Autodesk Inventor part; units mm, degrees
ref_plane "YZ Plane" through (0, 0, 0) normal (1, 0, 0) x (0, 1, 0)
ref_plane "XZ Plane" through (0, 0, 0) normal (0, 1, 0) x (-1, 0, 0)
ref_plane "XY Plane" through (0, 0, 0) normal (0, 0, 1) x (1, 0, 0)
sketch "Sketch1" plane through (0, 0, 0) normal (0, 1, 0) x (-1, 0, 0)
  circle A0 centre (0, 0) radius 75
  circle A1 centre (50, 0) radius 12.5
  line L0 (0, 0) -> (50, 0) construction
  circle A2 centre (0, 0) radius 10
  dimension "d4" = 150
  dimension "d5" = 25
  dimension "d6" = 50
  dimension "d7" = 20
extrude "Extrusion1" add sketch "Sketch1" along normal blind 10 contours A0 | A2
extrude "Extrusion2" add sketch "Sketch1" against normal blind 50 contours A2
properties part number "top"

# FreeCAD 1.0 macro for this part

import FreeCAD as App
import Part
import Sketcher

doc = App.newDocument("Part")
body = doc.addObject("PartDesign::Body", "Body")

# Sketch on XZ plane
sketch1 = doc.addObject("Sketcher::SketchObject", "Sketch")
body.addObject(sketch1)
sketch1.AttachmentSupport = (doc.XZ_Plane, [""])
sketch1.MapMode = "FlatFace"
sketch1.addGeometry(Part.Circle(App.Vector(0, 0, 0), App.Vector(0, 0, 1), 75), False)
sketch1.addGeometry(Part.Circle(App.Vector(-50, 0, 0), App.Vector(0, 0, 1), 12), False)
sketch1.addConstraint(Sketcher.Constraint("Coincident", 0, 3, -1, 1))
sketch1.addConstraint(Sketcher.Constraint("PointOnObject", 1, 3, -1))
sketch1.addConstraint(Sketcher.Constraint("Diameter", 0, 150.0))
sketch1.addConstraint(Sketcher.Constraint("Diameter", 1, 25.0))
sketch1.addConstraint(Sketcher.Constraint("DistanceX", 1, 3, -1, 1, 50.0))
pad1 = doc.addObject("PartDesign::Pad", "Pad")
body.addObject(pad1)
pad1.Profile = sketch1
pad1.Length = 10
pad1.Reversed = True

# Sketch on XZ plane
sketch2 = doc.addObject("Sketcher::SketchObject", "Sketch001")
body.addObject(sketch2)
sketch2.AttachmentSupport = (doc.XZ_Plane, [""])
sketch2.MapMode = "FlatFace"
sketch2.addGeometry(Part.Circle(App.Vector(0, 0, 0), App.Vector(0, 0, 1), 10), False)
sketch2.addConstraint(Sketcher.Constraint("Coincident", 0, 3, -1, 1))
sketch2.addConstraint(Sketcher.Constraint("Diameter", 0, 20.0))
pad2 = doc.addObject("PartDesign::Pad", "Pad001")
body.addObject(pad2)
pad2.Profile = sketch2
pad2.Length = 50

doc.recompute()
